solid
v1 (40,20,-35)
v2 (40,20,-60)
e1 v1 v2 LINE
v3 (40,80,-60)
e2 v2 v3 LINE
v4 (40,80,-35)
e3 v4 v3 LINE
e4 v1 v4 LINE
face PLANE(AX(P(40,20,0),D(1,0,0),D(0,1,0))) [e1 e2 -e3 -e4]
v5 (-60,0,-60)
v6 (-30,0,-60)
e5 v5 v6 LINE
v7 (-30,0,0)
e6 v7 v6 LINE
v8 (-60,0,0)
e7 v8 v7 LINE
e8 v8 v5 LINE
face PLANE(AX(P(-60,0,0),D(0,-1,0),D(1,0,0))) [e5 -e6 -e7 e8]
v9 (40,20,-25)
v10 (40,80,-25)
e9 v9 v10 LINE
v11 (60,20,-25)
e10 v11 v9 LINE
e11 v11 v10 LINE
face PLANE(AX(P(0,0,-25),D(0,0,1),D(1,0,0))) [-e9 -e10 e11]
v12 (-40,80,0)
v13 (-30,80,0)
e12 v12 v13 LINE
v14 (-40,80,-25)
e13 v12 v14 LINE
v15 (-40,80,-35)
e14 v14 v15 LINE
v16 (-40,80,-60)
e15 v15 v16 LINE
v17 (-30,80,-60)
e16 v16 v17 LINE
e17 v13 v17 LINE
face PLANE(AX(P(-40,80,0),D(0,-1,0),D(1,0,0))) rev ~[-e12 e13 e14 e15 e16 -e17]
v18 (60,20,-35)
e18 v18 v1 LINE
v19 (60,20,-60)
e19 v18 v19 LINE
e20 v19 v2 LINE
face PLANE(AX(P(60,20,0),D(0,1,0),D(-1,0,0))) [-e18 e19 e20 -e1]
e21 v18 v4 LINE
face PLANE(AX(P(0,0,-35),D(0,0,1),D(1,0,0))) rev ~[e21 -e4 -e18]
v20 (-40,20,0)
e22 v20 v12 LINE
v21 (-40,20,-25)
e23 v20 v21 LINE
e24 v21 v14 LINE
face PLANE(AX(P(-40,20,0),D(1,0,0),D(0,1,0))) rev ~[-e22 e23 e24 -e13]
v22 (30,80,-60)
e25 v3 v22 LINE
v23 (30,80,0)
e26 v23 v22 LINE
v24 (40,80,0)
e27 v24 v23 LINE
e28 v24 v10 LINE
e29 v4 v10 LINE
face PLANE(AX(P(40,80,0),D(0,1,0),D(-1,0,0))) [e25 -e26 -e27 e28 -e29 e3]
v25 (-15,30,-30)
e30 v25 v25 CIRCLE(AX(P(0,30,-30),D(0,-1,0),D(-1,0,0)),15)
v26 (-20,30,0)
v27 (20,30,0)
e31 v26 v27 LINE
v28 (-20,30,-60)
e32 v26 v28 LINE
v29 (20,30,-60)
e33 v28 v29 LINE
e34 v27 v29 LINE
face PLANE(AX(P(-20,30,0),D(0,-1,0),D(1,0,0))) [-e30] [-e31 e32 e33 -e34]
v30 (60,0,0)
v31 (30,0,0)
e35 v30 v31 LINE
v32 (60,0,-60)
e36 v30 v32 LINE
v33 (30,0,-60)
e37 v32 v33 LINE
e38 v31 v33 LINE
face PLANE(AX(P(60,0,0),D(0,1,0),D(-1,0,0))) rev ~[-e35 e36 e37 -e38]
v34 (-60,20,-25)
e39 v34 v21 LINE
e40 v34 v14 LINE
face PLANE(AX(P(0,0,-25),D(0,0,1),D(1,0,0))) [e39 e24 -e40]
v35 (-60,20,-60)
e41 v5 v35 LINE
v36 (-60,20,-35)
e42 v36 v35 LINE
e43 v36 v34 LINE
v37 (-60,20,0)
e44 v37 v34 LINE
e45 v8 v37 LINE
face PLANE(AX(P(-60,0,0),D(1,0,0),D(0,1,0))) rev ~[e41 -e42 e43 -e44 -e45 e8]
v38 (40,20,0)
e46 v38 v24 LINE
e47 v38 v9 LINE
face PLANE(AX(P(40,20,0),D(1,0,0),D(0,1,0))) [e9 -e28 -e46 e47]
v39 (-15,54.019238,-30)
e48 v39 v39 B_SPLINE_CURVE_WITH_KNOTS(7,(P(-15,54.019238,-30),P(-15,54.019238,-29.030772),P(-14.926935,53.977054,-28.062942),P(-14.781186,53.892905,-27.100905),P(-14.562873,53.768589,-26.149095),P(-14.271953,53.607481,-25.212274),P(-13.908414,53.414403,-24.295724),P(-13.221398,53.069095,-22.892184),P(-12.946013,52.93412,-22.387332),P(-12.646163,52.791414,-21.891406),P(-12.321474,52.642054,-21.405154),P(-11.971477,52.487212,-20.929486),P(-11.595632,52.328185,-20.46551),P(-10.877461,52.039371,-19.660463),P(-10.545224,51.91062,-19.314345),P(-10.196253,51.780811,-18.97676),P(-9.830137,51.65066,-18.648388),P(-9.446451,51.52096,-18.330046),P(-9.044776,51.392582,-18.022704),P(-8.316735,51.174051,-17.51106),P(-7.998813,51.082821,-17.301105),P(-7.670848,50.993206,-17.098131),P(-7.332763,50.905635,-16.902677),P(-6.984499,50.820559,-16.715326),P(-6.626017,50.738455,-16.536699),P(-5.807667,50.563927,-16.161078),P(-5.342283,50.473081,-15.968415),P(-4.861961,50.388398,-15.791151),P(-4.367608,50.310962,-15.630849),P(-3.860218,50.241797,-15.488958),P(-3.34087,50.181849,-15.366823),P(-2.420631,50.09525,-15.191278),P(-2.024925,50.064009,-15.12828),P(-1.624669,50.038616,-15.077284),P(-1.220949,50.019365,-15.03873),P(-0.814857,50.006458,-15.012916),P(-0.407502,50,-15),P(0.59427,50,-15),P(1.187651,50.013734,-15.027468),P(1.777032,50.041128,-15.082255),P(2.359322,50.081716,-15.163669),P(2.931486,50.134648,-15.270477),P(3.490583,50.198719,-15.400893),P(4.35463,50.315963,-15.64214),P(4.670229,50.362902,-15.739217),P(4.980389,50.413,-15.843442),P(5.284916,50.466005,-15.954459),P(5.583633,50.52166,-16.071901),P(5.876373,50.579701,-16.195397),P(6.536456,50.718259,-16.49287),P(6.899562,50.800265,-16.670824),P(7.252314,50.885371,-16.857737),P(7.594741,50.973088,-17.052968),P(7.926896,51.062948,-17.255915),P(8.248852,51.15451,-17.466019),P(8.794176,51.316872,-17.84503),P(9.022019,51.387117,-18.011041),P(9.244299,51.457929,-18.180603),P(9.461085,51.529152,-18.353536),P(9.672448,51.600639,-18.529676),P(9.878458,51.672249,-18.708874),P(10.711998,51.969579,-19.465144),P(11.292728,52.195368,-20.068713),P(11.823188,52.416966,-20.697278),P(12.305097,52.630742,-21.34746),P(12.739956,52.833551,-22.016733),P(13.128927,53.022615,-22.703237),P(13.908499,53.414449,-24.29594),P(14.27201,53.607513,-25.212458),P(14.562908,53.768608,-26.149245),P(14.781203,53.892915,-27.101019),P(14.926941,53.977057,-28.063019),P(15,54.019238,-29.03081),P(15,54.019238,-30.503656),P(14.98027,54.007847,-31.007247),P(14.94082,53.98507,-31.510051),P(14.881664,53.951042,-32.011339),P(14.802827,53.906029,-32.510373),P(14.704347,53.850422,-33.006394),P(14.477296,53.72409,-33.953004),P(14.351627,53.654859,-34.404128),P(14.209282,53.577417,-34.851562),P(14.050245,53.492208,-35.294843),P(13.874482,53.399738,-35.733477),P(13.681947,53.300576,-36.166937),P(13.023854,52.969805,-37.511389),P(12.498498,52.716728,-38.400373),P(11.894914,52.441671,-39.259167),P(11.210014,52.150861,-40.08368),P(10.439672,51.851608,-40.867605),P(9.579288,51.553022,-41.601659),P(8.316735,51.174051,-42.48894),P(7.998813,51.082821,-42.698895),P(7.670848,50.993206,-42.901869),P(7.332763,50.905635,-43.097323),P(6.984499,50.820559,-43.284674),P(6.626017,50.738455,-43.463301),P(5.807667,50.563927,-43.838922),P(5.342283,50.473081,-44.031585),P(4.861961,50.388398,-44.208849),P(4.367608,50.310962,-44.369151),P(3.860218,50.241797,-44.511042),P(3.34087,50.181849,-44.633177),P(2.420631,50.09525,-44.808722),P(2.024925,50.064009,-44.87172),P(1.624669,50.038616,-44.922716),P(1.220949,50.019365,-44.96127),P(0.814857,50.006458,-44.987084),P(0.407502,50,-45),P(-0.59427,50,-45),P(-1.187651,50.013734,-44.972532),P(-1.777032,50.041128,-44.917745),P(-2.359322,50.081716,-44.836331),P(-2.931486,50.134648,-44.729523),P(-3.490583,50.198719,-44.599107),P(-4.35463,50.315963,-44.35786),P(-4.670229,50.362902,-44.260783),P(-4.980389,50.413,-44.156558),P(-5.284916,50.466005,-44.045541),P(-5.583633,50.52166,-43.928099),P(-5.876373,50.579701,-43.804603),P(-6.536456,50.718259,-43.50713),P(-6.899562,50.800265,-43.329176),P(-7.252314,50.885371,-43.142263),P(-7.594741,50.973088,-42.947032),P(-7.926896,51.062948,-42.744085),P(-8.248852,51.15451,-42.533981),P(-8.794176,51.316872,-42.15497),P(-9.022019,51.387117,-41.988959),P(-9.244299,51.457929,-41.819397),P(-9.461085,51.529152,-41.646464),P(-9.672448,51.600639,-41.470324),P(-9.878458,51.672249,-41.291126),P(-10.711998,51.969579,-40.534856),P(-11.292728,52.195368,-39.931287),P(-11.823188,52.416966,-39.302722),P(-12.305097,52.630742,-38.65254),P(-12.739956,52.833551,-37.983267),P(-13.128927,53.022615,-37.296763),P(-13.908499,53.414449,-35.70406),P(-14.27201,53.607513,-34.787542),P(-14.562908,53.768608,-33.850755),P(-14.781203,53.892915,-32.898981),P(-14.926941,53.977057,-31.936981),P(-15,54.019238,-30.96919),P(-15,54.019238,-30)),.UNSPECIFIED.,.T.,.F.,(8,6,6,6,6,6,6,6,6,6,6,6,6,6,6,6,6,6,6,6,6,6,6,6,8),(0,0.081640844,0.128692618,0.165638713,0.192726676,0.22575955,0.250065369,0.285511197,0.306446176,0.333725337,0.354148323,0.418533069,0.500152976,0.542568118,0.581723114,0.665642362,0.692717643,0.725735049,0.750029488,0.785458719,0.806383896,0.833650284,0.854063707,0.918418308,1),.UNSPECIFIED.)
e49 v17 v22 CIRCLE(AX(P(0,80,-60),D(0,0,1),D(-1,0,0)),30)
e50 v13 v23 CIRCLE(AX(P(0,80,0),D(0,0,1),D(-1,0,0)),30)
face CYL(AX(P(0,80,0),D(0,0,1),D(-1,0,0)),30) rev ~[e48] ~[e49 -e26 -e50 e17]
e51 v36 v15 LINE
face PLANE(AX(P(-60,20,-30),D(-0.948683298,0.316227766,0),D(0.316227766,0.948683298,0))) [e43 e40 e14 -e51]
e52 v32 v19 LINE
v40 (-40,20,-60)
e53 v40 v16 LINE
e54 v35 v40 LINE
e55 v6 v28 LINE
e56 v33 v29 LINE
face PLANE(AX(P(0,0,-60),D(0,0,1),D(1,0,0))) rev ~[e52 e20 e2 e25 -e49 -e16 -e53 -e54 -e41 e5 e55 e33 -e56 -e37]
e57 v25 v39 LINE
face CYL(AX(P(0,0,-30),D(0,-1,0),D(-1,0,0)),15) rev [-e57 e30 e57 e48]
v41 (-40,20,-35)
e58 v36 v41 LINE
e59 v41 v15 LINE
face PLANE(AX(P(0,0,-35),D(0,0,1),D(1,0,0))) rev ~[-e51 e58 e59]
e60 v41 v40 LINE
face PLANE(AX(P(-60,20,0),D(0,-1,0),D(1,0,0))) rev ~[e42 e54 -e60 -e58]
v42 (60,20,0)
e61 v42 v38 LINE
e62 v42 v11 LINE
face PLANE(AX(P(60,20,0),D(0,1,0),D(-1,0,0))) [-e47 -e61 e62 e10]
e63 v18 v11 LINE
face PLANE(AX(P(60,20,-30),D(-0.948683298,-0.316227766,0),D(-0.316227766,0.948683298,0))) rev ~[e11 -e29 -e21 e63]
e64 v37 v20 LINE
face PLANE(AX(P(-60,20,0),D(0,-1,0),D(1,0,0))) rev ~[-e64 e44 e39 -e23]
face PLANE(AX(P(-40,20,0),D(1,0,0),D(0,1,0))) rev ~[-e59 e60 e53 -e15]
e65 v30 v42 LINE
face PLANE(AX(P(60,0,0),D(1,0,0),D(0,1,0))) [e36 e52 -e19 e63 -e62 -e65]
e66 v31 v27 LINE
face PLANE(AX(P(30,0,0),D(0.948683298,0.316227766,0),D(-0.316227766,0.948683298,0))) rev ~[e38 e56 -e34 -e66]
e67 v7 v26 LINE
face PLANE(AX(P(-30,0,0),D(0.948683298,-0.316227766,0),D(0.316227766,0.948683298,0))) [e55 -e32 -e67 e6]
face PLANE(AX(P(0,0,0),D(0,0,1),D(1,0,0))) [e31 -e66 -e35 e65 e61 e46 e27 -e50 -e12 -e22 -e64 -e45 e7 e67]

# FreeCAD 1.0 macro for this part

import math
import FreeCAD as App
import Part
import Sketcher
from FreeCAD import Vector


def add_polygon(sketch, points):
    """Adds a closed chain of lines whose ends are joined by coincident constraints."""
    first, n = sketch.GeometryCount, len(points)
    for a, b in zip(points, points[1:] + points[:1]):
        sketch.addGeometry(Part.LineSegment(App.Vector(*a, 0), App.Vector(*b, 0)), False)
    for i in range(n):
        sketch.addConstraint(Sketcher.Constraint("Coincident", first + i, 2, first + (i + 1) % n, 1))

doc = App.newDocument("Part")
params = doc.addObject("Spreadsheet::Sheet", "Params")
for row, (alias, value) in enumerate([
    ("sketch1_radius", "30 mm"),
    ("sketch1_width", "30 mm"),
    ("sketch1_width2", "40 mm"),
    ("sketch1_width3", "20 mm"),
    ("sketch1_height", "60 mm"),
    ("pad1_length", "60 mm"),
    ("sketch2_diameter", "30 mm"),
    ("pocket1_length", "1000 mm"),
    ("sketch3_width", "20 mm"),
    ("sketch3_height", "60 mm"),
    ("pad2_length", "10 mm"),
], start=1):
    params.set(f"A{row}", alias)
    params.set(f"B{row}", "=" + value)
    params.setAlias(f"B{row}", alias)

body = doc.addObject("PartDesign::Body", "Body")

# Sketch on XY plane
sketch1 = body.newObject("Sketcher::SketchObject", "Sketch")
sketch1.AttachmentSupport = (doc.getObject("XY_Plane"), [""])
sketch1.MapMode = "FlatFace"
sketch1.addGeometry(Part.LineSegment(Vector(-60, 20, 0), Vector(-60, 0, 0)), False)
sketch1.addGeometry(Part.LineSegment(Vector(-60, 0, 0), Vector(-30, 0, 0)), False)
sketch1.addGeometry(Part.LineSegment(Vector(-30, 0, 0), Vector(-20, 30, 0)), False)
sketch1.addGeometry(Part.LineSegment(Vector(-20, 30, 0), Vector(20, 30, 0)), False)
sketch1.addGeometry(Part.LineSegment(Vector(20, 30, 0), Vector(30, 0, 0)), False)
sketch1.addGeometry(Part.LineSegment(Vector(30, 0, 0), Vector(60, 0, 0)), False)
sketch1.addGeometry(Part.LineSegment(Vector(60, 0, 0), Vector(60, 20, 0)), False)
sketch1.addGeometry(Part.LineSegment(Vector(60, 20, 0), Vector(40, 20, 0)), False)
sketch1.addGeometry(Part.LineSegment(Vector(40, 20, 0), Vector(40, 80, 0)), False)
sketch1.addGeometry(Part.LineSegment(Vector(40, 80, 0), Vector(30, 80, 0)), False)
sketch1.addGeometry(Part.ArcOfCircle(Part.Circle(Vector(0, 80, 0), Vector(0, 0, 1), 30), math.radians(180), math.radians(360)), False)
sketch1.addGeometry(Part.LineSegment(Vector(-30, 80, 0), Vector(-40, 80, 0)), False)
sketch1.addGeometry(Part.LineSegment(Vector(-40, 80, 0), Vector(-40, 20, 0)), False)
sketch1.addGeometry(Part.LineSegment(Vector(-40, 20, 0), Vector(-60, 20, 0)), False)
sketch1.addConstraint(Sketcher.Constraint("Coincident", 0, 2, 1, 1))
sketch1.addConstraint(Sketcher.Constraint("Coincident", 1, 2, 2, 1))
sketch1.addConstraint(Sketcher.Constraint("Coincident", 2, 2, 3, 1))
sketch1.addConstraint(Sketcher.Constraint("Coincident", 3, 2, 4, 1))
sketch1.addConstraint(Sketcher.Constraint("Coincident", 4, 2, 5, 1))
sketch1.addConstraint(Sketcher.Constraint("Coincident", 5, 2, 6, 1))
sketch1.addConstraint(Sketcher.Constraint("Coincident", 6, 2, 7, 1))
sketch1.addConstraint(Sketcher.Constraint("Coincident", 7, 2, 8, 1))
sketch1.addConstraint(Sketcher.Constraint("Coincident", 8, 2, 9, 1))
sketch1.addConstraint(Sketcher.Constraint("Coincident", 9, 2, 10, 2))
sketch1.addConstraint(Sketcher.Constraint("Coincident", 10, 1, 11, 1))
sketch1.addConstraint(Sketcher.Constraint("Coincident", 11, 2, 12, 1))
sketch1.addConstraint(Sketcher.Constraint("Coincident", 12, 2, 13, 1))
sketch1.addConstraint(Sketcher.Constraint("Coincident", 13, 2, 0, 1))
sketch1.addConstraint(Sketcher.Constraint("Vertical", 0))
sketch1.addConstraint(Sketcher.Constraint("Horizontal", 1))
sketch1.addConstraint(Sketcher.Constraint("Horizontal", 3))
sketch1.addConstraint(Sketcher.Constraint("Horizontal", 5))
sketch1.addConstraint(Sketcher.Constraint("Vertical", 6))
sketch1.addConstraint(Sketcher.Constraint("Horizontal", 7))
sketch1.addConstraint(Sketcher.Constraint("Vertical", 8))
sketch1.addConstraint(Sketcher.Constraint("Horizontal", 9))
sketch1.addConstraint(Sketcher.Constraint("Horizontal", 11))
sketch1.addConstraint(Sketcher.Constraint("Vertical", 12))
sketch1.addConstraint(Sketcher.Constraint("Horizontal", 13))
sketch1.addConstraint(Sketcher.Constraint("Symmetric", 1, 2, 4, 2, -1, 1))
sketch1.addConstraint(Sketcher.Constraint("Symmetric", 0, 2, 5, 2, -2))
sketch1.addConstraint(Sketcher.Constraint("Symmetric", 9, 2, 10, 1, -2))
sketch1.addConstraint(Sketcher.Constraint("Symmetric", 7, 2, 12, 2, -2))
sketch1.addConstraint(Sketcher.Constraint("Horizontal", 10, 3, 8, 2))
sketch1.addConstraint(Sketcher.Constraint("Vertical", 4, 2, 9, 2))
sketch1.addConstraint(Sketcher.Constraint("Equal", 13, 0))
sketch1.addConstraint(Sketcher.Constraint("Equal", 2, 4))
sketch1.addConstraint(Sketcher.Constraint("Radius", 10, 30.0))
sketch1.addConstraint(Sketcher.Constraint("DistanceX", 1, 1, 1, 2, 30.0))
sketch1.addConstraint(Sketcher.Constraint("DistanceX", 3, 1, 3, 2, 40.0))
sketch1.addConstraint(Sketcher.Constraint("DistanceX", 7, 2, 7, 1, 20.0))
sketch1.addConstraint(Sketcher.Constraint("DistanceY", 8, 1, 8, 2, 60.0))
sketch1.addConstraint(Sketcher.Constraint("DistanceY", -1, 1, 2, 2, 30.0))
sketch1.setExpression("Constraints[33]", "Params.sketch1_radius")
sketch1.setExpression("Constraints[34]", "Params.sketch1_width")
sketch1.setExpression("Constraints[35]", "Params.sketch1_width2")
sketch1.setExpression("Constraints[36]", "Params.sketch1_width3")
sketch1.setExpression("Constraints[37]", "Params.sketch1_height")
pad1 = body.newObject("PartDesign::Pad", "Pad")
pad1.Profile = sketch1
pad1.setExpression("Length", "Params.pad1_length")
pad1.Reversed = True

# Sketch on XZ plane
sketch2 = body.newObject("Sketcher::SketchObject", "Sketch001")
sketch2.AttachmentSupport = (doc.getObject("XZ_Plane"), [""])
sketch2.MapMode = "FlatFace"
sketch2.addGeometry(Part.Circle(Vector(0, -30, 0), Vector(0, 0, 1), 15), False)
sketch2.addConstraint(Sketcher.Constraint("PointOnObject", 0, 3, -2))
sketch2.addConstraint(Sketcher.Constraint("Diameter", 0, 30.0))
sketch2.addConstraint(Sketcher.Constraint("DistanceY", 0, 3, -1, 1, 30.0))
sketch2.setExpression("Constraints[1]", "Params.sketch2_diameter")
pocket1 = body.newObject("PartDesign::Pocket", "Pocket")
pocket1.Profile = sketch2
pocket1.setExpression("Length", "Params.pocket1_length")
pocket1.Midplane = True

# Sketch on XY plane
sketch3 = body.newObject("Sketcher::SketchObject", "Sketch002")
sketch3.AttachmentSupport = (doc.getObject("XY_Plane"), [""])
sketch3.MapMode = "FlatFace"
sketch3.AttachmentOffset = App.Placement(Vector(0, 0, -30), App.Rotation())
add_polygon(sketch3, [(-40, 80), (-60, 20), (-40, 20)])  # lines 0-2
add_polygon(sketch3, [(40, 20), (60, 20), (40, 80)])  # lines 3-5
sketch3.addConstraint(Sketcher.Constraint("Horizontal", 1))
sketch3.addConstraint(Sketcher.Constraint("Vertical", 2))
sketch3.addConstraint(Sketcher.Constraint("Horizontal", 3))
sketch3.addConstraint(Sketcher.Constraint("Vertical", 5))
sketch3.addConstraint(Sketcher.Constraint("Symmetric", 0, 2, 3, 2, -2))
sketch3.addConstraint(Sketcher.Constraint("Symmetric", 2, 2, 4, 2, -2))
sketch3.addConstraint(Sketcher.Constraint("DistanceX", 1, 1, 1, 2, 20.0))
sketch3.addConstraint(Sketcher.Constraint("DistanceY", 2, 1, 2, 2, 60.0))
sketch3.addConstraint(Sketcher.Constraint("DistanceX", 0, 2, -1, 1, 60.0))
sketch3.addConstraint(Sketcher.Constraint("DistanceY", -1, 1, 0, 2, 20.0))
sketch3.setExpression("Constraints[12]", "Params.sketch3_width")
sketch3.setExpression("Constraints[13]", "Params.sketch3_height")
pad2 = body.newObject("PartDesign::Pad", "Pad001")
pad2.Profile = sketch3
pad2.setExpression("Length", "Params.pad2_length")
pad2.Midplane = True

doc.recompute()
